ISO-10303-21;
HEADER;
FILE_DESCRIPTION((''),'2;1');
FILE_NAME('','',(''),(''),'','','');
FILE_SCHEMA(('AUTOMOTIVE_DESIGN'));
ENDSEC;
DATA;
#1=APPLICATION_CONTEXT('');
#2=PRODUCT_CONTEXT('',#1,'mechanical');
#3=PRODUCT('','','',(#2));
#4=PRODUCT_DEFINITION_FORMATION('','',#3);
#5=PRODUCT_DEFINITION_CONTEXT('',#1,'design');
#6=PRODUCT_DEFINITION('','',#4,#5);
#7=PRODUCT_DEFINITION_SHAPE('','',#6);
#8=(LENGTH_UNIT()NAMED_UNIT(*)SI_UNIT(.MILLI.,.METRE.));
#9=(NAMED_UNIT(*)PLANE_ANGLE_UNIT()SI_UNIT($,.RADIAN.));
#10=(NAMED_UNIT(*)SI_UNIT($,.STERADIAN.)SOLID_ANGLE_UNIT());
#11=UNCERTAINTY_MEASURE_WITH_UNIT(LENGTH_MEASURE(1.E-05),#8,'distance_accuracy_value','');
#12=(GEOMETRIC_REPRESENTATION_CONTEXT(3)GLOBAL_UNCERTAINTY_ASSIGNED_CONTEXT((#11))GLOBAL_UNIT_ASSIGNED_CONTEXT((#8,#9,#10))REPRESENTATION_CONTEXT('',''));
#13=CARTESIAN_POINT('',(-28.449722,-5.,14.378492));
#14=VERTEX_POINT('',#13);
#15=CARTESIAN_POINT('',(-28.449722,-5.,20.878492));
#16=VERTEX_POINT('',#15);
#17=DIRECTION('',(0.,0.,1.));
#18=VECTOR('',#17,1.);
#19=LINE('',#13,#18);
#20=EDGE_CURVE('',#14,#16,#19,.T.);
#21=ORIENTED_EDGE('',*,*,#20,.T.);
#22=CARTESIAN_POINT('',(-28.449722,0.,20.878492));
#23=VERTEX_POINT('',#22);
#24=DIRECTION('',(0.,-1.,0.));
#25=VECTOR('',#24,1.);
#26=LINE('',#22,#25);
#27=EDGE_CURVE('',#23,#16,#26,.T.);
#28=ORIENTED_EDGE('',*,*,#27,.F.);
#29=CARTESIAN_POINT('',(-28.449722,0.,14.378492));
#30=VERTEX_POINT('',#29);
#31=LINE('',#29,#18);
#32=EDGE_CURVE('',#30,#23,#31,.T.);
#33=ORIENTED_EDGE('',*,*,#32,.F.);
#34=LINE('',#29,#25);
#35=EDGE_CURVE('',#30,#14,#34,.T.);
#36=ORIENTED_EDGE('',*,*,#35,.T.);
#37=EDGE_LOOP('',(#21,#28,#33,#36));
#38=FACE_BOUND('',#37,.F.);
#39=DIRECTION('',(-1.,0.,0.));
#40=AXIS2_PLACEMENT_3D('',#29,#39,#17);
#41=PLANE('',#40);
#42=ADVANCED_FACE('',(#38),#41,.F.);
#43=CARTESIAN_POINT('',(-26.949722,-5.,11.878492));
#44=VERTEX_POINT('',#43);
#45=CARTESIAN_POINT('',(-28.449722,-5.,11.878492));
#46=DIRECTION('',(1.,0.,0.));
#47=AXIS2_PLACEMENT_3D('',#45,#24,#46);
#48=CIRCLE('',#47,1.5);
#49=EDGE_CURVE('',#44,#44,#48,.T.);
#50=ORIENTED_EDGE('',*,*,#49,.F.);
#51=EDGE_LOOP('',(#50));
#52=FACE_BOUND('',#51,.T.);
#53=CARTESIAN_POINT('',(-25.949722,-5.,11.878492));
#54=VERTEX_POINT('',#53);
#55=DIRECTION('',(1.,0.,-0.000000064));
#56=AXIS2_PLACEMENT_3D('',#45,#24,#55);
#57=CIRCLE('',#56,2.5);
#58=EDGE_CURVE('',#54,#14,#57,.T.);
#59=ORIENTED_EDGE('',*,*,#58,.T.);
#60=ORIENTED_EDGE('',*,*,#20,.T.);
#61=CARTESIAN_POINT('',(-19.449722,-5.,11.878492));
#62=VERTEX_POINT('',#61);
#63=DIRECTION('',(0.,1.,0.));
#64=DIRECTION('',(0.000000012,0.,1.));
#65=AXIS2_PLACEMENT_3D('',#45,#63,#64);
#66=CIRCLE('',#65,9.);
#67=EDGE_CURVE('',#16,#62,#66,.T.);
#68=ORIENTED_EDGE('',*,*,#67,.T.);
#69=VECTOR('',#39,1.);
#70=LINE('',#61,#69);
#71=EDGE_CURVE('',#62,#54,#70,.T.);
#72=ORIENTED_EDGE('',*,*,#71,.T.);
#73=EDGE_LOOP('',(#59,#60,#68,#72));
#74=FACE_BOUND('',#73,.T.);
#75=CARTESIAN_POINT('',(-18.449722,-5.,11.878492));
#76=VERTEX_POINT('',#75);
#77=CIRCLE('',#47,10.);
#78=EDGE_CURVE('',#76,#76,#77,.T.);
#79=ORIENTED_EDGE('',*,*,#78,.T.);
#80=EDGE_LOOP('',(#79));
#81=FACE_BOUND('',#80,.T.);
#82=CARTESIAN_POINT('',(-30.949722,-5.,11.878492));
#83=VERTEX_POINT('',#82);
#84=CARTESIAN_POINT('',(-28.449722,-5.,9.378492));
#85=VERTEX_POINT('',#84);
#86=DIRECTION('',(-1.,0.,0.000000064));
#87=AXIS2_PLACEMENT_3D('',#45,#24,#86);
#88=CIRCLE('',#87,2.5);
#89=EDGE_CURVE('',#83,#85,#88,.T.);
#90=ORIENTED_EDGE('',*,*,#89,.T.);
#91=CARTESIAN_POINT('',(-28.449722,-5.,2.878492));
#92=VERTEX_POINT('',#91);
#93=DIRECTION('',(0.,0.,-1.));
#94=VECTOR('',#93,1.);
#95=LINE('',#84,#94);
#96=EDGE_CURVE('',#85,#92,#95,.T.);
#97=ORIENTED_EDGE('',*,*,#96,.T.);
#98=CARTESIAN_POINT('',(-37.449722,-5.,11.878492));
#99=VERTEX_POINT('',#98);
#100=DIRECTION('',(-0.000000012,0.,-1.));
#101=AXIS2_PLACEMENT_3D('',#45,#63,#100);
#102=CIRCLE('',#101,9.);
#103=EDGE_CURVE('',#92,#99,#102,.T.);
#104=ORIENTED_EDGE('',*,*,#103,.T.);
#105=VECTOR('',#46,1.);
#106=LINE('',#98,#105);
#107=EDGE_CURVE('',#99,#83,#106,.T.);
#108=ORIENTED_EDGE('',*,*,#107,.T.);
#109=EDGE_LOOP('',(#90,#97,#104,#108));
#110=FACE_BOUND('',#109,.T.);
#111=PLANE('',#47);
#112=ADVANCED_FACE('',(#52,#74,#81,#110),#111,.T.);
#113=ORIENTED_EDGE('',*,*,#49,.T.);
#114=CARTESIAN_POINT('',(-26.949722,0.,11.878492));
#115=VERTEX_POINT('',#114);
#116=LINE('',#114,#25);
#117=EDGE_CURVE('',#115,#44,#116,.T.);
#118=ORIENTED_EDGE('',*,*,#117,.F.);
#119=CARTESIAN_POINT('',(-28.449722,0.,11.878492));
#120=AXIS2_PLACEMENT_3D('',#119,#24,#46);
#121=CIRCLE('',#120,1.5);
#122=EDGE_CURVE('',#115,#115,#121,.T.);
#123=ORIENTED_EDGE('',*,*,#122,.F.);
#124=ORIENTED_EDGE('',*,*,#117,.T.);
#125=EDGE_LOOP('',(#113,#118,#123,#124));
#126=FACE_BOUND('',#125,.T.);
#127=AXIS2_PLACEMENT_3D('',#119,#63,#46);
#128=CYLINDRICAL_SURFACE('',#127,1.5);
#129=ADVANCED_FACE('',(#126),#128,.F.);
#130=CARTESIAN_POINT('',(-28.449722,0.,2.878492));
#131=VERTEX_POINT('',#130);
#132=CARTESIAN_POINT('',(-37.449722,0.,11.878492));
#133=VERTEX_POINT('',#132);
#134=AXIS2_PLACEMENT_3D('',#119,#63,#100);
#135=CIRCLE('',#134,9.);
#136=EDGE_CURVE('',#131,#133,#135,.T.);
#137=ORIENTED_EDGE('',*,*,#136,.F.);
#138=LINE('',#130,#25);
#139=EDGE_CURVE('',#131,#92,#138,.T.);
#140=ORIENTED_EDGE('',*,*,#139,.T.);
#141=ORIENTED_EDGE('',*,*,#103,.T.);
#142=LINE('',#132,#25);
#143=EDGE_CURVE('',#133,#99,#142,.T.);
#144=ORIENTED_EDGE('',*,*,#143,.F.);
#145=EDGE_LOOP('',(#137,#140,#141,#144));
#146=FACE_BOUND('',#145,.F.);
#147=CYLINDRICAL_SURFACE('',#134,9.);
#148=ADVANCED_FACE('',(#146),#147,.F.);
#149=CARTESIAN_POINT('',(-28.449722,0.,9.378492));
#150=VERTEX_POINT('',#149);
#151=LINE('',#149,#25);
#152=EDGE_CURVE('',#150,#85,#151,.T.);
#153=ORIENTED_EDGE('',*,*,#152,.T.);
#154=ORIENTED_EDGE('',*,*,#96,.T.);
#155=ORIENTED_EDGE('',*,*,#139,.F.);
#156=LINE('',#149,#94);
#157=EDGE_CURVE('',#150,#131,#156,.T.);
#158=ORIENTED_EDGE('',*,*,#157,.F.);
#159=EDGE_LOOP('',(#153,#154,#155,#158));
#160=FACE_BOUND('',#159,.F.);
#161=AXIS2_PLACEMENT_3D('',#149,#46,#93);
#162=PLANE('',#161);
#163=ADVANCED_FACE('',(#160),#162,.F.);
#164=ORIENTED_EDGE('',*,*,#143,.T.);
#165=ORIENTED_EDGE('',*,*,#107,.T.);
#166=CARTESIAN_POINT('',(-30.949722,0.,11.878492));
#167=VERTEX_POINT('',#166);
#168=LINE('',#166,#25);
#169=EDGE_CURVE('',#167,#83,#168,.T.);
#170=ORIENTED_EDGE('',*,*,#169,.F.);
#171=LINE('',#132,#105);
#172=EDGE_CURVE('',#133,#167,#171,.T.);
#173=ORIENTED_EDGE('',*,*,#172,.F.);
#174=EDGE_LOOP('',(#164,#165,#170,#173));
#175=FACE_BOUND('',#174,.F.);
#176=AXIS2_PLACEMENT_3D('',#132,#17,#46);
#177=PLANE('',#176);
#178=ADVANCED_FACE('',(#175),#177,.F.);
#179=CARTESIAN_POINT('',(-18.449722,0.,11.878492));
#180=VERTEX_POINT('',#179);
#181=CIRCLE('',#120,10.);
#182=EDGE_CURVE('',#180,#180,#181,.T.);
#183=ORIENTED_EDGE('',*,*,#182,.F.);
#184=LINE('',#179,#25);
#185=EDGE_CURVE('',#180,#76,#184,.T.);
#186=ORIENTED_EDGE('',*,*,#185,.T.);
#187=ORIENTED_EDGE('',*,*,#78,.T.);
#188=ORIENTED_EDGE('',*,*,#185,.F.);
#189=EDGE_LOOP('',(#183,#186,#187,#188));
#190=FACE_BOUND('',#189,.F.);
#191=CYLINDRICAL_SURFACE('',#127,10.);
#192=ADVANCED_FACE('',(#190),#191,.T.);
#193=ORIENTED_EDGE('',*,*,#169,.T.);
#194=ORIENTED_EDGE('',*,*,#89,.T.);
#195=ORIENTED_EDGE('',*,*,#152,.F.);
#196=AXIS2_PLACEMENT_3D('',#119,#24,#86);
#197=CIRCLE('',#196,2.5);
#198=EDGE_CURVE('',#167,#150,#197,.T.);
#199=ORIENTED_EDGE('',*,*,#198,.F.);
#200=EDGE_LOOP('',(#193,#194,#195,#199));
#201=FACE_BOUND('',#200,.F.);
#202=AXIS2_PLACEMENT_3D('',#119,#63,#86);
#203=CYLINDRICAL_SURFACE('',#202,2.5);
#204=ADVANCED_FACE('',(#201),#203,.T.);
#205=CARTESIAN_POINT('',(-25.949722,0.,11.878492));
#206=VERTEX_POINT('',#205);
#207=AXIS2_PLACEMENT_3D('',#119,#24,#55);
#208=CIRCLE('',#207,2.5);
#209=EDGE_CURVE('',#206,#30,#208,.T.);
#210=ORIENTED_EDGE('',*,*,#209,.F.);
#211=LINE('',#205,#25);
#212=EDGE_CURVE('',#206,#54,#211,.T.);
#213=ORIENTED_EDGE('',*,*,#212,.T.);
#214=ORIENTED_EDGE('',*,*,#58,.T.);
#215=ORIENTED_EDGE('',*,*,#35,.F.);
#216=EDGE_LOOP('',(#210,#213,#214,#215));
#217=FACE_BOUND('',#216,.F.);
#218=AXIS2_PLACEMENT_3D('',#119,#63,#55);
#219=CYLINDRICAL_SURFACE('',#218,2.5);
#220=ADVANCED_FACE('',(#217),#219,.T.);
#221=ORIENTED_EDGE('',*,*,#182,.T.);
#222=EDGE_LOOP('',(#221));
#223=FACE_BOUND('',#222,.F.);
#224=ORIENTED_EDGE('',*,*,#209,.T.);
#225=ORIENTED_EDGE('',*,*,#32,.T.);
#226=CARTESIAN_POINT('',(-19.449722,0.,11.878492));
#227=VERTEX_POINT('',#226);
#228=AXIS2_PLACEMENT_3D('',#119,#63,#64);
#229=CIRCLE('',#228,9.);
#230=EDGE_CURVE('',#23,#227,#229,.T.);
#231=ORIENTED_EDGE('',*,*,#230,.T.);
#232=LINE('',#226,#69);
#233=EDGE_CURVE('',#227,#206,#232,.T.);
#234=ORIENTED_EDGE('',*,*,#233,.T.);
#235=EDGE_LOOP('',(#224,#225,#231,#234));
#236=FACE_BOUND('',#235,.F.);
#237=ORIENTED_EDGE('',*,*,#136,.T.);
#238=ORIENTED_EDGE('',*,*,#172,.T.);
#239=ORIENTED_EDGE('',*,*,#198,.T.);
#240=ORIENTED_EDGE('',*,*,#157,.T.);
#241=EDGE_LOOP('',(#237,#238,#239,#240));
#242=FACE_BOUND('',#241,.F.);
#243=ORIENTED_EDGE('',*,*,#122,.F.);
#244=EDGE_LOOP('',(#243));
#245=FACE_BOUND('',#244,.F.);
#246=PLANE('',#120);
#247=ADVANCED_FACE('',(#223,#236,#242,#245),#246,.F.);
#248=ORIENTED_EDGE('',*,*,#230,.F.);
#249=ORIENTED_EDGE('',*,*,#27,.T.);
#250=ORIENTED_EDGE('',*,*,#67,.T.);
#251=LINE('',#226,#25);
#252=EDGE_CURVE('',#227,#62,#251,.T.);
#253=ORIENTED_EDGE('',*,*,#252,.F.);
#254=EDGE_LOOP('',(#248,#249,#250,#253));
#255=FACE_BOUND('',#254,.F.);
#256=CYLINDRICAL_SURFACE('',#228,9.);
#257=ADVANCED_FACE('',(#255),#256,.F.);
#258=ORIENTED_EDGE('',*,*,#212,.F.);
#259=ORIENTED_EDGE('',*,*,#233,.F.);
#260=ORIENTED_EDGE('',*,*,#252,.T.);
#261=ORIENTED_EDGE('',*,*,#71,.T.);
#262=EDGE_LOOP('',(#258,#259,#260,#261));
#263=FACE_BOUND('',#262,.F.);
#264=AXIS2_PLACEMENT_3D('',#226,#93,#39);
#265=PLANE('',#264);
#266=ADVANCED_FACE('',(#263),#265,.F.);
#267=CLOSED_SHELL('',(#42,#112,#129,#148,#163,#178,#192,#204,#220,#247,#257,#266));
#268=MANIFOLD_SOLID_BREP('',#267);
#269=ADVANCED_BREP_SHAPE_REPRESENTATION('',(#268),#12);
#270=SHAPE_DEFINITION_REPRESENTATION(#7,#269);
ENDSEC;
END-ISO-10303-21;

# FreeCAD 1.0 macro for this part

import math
import FreeCAD as App
import Part
import Sketcher
Q = App.Units.Quantity

doc = App.newDocument("Part")
params = doc.addObject("Spreadsheet::Sheet", "Params")
for row, (alias, value) in enumerate([
    ("sketch1_diameter", "20 mm"),
    ("sketch1_diameter2", "3 mm"),
    ("sketch1_radius", "9 mm"),
    ("sketch1_radius2", "2.5 mm"),
    ("pad1_length", "5 mm"),
], start=1):
    params.set(f"A{row}", alias)
    params.set(f"B{row}", "=" + value)
    params.setAlias(f"B{row}", alias)

body = doc.addObject("PartDesign::Body", "Body")

# Sketch on XZ plane
sketch1 = body.newObject("Sketcher::SketchObject", "Sketch")
sketch1.AttachmentSupport = (doc.getObject("XZ_Plane"), [""])
sketch1.MapMode = "FlatFace"
sketch1.addGeometry(Part.Circle(App.Vector(-28.449722, 11.878492, 0), App.Vector(0, 0, 1), 10), False)
sketch1.addGeometry(Part.LineSegment(App.Vector(-28.449722, 9.378492, 0), App.Vector(-28.449722, 2.878492, 0)), False)
sketch1.addGeometry(Part.ArcOfCircle(Part.Circle(App.Vector(-28.449722, 11.878492, 0), App.Vector(0, 0, 1), 9), math.radians(-179.999999), math.radians(-90.000001)), False)
sketch1.addGeometry(Part.LineSegment(App.Vector(-37.449722, 11.878492, 0), App.Vector(-30.949722, 11.878492, 0)), False)
sketch1.addGeometry(Part.ArcOfCircle(Part.Circle(App.Vector(-28.449722, 11.878492, 0), App.Vector(0, 0, 1), 2.5), math.radians(179.999996), math.radians(270.000004)), False)
sketch1.addGeometry(Part.Circle(App.Vector(-28.449722, 11.878492, 0), App.Vector(0, 0, 1), 1.5), False)
sketch1.addGeometry(Part.LineSegment(App.Vector(-19.449722, 11.878492, 0), App.Vector(-25.949722, 11.878492, 0)), False)
sketch1.addGeometry(Part.ArcOfCircle(Part.Circle(App.Vector(-28.449722, 11.878492, 0), App.Vector(0, 0, 1), 2.5), math.radians(-0.000004), math.radians(90.000004)), False)
sketch1.addGeometry(Part.LineSegment(App.Vector(-28.449722, 14.378492, 0), App.Vector(-28.449722, 20.878492, 0)), False)
sketch1.addGeometry(Part.ArcOfCircle(Part.Circle(App.Vector(-28.449722, 11.878492, 0), App.Vector(0, 0, 1), 9), math.radians(0.000001), math.radians(89.999999)), False)
sketch1.addConstraint(Sketcher.Constraint("Coincident", 1, 2, 2, 2))
sketch1.addConstraint(Sketcher.Constraint("Coincident", 2, 1, 3, 1))
sketch1.addConstraint(Sketcher.Constraint("Coincident", 3, 2, 4, 1))
sketch1.addConstraint(Sketcher.Constraint("Coincident", 4, 2, 1, 1))
sketch1.addConstraint(Sketcher.Constraint("Coincident", 6, 2, 7, 1))
sketch1.addConstraint(Sketcher.Constraint("Coincident", 7, 2, 8, 1))
sketch1.addConstraint(Sketcher.Constraint("Coincident", 8, 2, 9, 2))
sketch1.addConstraint(Sketcher.Constraint("Coincident", 9, 1, 6, 1))
sketch1.addConstraint(Sketcher.Constraint("Vertical", 1))
sketch1.addConstraint(Sketcher.Constraint("Horizontal", 3))
sketch1.addConstraint(Sketcher.Constraint("Horizontal", 6))
sketch1.addConstraint(Sketcher.Constraint("Vertical", 8))
sketch1.addConstraint(Sketcher.Constraint("Coincident", 2, 3, 0, 3))
sketch1.addConstraint(Sketcher.Constraint("Coincident", 4, 3, 0, 3))
sketch1.addConstraint(Sketcher.Constraint("Coincident", 5, 3, 0, 3))
sketch1.addConstraint(Sketcher.Constraint("Coincident", 7, 3, 0, 3))
sketch1.addConstraint(Sketcher.Constraint("Coincident", 9, 3, 0, 3))
sketch1.addConstraint(Sketcher.Constraint("Equal", 4, 7))
sketch1.addConstraint(Sketcher.Constraint("Equal", 2, 9))
sketch1.addConstraint(Sketcher.Constraint("Horizontal", 9, 3, 2, 1))
sketch1.addConstraint(Sketcher.Constraint("Horizontal", 3, 2, 6, 2))
sketch1.addConstraint(Sketcher.Constraint("Vertical", 9, 3, 1, 2))
sketch1.addConstraint(Sketcher.Constraint("Vertical", 4, 2, 7, 2))
sketch1.addConstraint(Sketcher.Constraint("Diameter", 0, Q("20 mm")))
sketch1.addConstraint(Sketcher.Constraint("Diameter", 5, Q("3 mm")))
sketch1.addConstraint(Sketcher.Constraint("Radius", 2, Q("9 mm")))
sketch1.addConstraint(Sketcher.Constraint("Radius", 4, Q("2.5 mm")))
sketch1.addConstraint(Sketcher.Constraint("DistanceX", 2, 3, -1, 1, Q("28.449722 mm")))
sketch1.addConstraint(Sketcher.Constraint("DistanceY", -1, 1, 4, 3, Q("11.878492 mm")))
sketch1.setExpression("Constraints[23]", "Params.sketch1_diameter")
sketch1.setExpression("Constraints[24]", "Params.sketch1_diameter2")
sketch1.setExpression("Constraints[25]", "Params.sketch1_radius")
sketch1.setExpression("Constraints[26]", "Params.sketch1_radius2")
pad1 = body.newObject("PartDesign::Pad", "Pad")
pad1.Profile = sketch1
pad1.setExpression("Length", "Params.pad1_length")

doc.recompute()
